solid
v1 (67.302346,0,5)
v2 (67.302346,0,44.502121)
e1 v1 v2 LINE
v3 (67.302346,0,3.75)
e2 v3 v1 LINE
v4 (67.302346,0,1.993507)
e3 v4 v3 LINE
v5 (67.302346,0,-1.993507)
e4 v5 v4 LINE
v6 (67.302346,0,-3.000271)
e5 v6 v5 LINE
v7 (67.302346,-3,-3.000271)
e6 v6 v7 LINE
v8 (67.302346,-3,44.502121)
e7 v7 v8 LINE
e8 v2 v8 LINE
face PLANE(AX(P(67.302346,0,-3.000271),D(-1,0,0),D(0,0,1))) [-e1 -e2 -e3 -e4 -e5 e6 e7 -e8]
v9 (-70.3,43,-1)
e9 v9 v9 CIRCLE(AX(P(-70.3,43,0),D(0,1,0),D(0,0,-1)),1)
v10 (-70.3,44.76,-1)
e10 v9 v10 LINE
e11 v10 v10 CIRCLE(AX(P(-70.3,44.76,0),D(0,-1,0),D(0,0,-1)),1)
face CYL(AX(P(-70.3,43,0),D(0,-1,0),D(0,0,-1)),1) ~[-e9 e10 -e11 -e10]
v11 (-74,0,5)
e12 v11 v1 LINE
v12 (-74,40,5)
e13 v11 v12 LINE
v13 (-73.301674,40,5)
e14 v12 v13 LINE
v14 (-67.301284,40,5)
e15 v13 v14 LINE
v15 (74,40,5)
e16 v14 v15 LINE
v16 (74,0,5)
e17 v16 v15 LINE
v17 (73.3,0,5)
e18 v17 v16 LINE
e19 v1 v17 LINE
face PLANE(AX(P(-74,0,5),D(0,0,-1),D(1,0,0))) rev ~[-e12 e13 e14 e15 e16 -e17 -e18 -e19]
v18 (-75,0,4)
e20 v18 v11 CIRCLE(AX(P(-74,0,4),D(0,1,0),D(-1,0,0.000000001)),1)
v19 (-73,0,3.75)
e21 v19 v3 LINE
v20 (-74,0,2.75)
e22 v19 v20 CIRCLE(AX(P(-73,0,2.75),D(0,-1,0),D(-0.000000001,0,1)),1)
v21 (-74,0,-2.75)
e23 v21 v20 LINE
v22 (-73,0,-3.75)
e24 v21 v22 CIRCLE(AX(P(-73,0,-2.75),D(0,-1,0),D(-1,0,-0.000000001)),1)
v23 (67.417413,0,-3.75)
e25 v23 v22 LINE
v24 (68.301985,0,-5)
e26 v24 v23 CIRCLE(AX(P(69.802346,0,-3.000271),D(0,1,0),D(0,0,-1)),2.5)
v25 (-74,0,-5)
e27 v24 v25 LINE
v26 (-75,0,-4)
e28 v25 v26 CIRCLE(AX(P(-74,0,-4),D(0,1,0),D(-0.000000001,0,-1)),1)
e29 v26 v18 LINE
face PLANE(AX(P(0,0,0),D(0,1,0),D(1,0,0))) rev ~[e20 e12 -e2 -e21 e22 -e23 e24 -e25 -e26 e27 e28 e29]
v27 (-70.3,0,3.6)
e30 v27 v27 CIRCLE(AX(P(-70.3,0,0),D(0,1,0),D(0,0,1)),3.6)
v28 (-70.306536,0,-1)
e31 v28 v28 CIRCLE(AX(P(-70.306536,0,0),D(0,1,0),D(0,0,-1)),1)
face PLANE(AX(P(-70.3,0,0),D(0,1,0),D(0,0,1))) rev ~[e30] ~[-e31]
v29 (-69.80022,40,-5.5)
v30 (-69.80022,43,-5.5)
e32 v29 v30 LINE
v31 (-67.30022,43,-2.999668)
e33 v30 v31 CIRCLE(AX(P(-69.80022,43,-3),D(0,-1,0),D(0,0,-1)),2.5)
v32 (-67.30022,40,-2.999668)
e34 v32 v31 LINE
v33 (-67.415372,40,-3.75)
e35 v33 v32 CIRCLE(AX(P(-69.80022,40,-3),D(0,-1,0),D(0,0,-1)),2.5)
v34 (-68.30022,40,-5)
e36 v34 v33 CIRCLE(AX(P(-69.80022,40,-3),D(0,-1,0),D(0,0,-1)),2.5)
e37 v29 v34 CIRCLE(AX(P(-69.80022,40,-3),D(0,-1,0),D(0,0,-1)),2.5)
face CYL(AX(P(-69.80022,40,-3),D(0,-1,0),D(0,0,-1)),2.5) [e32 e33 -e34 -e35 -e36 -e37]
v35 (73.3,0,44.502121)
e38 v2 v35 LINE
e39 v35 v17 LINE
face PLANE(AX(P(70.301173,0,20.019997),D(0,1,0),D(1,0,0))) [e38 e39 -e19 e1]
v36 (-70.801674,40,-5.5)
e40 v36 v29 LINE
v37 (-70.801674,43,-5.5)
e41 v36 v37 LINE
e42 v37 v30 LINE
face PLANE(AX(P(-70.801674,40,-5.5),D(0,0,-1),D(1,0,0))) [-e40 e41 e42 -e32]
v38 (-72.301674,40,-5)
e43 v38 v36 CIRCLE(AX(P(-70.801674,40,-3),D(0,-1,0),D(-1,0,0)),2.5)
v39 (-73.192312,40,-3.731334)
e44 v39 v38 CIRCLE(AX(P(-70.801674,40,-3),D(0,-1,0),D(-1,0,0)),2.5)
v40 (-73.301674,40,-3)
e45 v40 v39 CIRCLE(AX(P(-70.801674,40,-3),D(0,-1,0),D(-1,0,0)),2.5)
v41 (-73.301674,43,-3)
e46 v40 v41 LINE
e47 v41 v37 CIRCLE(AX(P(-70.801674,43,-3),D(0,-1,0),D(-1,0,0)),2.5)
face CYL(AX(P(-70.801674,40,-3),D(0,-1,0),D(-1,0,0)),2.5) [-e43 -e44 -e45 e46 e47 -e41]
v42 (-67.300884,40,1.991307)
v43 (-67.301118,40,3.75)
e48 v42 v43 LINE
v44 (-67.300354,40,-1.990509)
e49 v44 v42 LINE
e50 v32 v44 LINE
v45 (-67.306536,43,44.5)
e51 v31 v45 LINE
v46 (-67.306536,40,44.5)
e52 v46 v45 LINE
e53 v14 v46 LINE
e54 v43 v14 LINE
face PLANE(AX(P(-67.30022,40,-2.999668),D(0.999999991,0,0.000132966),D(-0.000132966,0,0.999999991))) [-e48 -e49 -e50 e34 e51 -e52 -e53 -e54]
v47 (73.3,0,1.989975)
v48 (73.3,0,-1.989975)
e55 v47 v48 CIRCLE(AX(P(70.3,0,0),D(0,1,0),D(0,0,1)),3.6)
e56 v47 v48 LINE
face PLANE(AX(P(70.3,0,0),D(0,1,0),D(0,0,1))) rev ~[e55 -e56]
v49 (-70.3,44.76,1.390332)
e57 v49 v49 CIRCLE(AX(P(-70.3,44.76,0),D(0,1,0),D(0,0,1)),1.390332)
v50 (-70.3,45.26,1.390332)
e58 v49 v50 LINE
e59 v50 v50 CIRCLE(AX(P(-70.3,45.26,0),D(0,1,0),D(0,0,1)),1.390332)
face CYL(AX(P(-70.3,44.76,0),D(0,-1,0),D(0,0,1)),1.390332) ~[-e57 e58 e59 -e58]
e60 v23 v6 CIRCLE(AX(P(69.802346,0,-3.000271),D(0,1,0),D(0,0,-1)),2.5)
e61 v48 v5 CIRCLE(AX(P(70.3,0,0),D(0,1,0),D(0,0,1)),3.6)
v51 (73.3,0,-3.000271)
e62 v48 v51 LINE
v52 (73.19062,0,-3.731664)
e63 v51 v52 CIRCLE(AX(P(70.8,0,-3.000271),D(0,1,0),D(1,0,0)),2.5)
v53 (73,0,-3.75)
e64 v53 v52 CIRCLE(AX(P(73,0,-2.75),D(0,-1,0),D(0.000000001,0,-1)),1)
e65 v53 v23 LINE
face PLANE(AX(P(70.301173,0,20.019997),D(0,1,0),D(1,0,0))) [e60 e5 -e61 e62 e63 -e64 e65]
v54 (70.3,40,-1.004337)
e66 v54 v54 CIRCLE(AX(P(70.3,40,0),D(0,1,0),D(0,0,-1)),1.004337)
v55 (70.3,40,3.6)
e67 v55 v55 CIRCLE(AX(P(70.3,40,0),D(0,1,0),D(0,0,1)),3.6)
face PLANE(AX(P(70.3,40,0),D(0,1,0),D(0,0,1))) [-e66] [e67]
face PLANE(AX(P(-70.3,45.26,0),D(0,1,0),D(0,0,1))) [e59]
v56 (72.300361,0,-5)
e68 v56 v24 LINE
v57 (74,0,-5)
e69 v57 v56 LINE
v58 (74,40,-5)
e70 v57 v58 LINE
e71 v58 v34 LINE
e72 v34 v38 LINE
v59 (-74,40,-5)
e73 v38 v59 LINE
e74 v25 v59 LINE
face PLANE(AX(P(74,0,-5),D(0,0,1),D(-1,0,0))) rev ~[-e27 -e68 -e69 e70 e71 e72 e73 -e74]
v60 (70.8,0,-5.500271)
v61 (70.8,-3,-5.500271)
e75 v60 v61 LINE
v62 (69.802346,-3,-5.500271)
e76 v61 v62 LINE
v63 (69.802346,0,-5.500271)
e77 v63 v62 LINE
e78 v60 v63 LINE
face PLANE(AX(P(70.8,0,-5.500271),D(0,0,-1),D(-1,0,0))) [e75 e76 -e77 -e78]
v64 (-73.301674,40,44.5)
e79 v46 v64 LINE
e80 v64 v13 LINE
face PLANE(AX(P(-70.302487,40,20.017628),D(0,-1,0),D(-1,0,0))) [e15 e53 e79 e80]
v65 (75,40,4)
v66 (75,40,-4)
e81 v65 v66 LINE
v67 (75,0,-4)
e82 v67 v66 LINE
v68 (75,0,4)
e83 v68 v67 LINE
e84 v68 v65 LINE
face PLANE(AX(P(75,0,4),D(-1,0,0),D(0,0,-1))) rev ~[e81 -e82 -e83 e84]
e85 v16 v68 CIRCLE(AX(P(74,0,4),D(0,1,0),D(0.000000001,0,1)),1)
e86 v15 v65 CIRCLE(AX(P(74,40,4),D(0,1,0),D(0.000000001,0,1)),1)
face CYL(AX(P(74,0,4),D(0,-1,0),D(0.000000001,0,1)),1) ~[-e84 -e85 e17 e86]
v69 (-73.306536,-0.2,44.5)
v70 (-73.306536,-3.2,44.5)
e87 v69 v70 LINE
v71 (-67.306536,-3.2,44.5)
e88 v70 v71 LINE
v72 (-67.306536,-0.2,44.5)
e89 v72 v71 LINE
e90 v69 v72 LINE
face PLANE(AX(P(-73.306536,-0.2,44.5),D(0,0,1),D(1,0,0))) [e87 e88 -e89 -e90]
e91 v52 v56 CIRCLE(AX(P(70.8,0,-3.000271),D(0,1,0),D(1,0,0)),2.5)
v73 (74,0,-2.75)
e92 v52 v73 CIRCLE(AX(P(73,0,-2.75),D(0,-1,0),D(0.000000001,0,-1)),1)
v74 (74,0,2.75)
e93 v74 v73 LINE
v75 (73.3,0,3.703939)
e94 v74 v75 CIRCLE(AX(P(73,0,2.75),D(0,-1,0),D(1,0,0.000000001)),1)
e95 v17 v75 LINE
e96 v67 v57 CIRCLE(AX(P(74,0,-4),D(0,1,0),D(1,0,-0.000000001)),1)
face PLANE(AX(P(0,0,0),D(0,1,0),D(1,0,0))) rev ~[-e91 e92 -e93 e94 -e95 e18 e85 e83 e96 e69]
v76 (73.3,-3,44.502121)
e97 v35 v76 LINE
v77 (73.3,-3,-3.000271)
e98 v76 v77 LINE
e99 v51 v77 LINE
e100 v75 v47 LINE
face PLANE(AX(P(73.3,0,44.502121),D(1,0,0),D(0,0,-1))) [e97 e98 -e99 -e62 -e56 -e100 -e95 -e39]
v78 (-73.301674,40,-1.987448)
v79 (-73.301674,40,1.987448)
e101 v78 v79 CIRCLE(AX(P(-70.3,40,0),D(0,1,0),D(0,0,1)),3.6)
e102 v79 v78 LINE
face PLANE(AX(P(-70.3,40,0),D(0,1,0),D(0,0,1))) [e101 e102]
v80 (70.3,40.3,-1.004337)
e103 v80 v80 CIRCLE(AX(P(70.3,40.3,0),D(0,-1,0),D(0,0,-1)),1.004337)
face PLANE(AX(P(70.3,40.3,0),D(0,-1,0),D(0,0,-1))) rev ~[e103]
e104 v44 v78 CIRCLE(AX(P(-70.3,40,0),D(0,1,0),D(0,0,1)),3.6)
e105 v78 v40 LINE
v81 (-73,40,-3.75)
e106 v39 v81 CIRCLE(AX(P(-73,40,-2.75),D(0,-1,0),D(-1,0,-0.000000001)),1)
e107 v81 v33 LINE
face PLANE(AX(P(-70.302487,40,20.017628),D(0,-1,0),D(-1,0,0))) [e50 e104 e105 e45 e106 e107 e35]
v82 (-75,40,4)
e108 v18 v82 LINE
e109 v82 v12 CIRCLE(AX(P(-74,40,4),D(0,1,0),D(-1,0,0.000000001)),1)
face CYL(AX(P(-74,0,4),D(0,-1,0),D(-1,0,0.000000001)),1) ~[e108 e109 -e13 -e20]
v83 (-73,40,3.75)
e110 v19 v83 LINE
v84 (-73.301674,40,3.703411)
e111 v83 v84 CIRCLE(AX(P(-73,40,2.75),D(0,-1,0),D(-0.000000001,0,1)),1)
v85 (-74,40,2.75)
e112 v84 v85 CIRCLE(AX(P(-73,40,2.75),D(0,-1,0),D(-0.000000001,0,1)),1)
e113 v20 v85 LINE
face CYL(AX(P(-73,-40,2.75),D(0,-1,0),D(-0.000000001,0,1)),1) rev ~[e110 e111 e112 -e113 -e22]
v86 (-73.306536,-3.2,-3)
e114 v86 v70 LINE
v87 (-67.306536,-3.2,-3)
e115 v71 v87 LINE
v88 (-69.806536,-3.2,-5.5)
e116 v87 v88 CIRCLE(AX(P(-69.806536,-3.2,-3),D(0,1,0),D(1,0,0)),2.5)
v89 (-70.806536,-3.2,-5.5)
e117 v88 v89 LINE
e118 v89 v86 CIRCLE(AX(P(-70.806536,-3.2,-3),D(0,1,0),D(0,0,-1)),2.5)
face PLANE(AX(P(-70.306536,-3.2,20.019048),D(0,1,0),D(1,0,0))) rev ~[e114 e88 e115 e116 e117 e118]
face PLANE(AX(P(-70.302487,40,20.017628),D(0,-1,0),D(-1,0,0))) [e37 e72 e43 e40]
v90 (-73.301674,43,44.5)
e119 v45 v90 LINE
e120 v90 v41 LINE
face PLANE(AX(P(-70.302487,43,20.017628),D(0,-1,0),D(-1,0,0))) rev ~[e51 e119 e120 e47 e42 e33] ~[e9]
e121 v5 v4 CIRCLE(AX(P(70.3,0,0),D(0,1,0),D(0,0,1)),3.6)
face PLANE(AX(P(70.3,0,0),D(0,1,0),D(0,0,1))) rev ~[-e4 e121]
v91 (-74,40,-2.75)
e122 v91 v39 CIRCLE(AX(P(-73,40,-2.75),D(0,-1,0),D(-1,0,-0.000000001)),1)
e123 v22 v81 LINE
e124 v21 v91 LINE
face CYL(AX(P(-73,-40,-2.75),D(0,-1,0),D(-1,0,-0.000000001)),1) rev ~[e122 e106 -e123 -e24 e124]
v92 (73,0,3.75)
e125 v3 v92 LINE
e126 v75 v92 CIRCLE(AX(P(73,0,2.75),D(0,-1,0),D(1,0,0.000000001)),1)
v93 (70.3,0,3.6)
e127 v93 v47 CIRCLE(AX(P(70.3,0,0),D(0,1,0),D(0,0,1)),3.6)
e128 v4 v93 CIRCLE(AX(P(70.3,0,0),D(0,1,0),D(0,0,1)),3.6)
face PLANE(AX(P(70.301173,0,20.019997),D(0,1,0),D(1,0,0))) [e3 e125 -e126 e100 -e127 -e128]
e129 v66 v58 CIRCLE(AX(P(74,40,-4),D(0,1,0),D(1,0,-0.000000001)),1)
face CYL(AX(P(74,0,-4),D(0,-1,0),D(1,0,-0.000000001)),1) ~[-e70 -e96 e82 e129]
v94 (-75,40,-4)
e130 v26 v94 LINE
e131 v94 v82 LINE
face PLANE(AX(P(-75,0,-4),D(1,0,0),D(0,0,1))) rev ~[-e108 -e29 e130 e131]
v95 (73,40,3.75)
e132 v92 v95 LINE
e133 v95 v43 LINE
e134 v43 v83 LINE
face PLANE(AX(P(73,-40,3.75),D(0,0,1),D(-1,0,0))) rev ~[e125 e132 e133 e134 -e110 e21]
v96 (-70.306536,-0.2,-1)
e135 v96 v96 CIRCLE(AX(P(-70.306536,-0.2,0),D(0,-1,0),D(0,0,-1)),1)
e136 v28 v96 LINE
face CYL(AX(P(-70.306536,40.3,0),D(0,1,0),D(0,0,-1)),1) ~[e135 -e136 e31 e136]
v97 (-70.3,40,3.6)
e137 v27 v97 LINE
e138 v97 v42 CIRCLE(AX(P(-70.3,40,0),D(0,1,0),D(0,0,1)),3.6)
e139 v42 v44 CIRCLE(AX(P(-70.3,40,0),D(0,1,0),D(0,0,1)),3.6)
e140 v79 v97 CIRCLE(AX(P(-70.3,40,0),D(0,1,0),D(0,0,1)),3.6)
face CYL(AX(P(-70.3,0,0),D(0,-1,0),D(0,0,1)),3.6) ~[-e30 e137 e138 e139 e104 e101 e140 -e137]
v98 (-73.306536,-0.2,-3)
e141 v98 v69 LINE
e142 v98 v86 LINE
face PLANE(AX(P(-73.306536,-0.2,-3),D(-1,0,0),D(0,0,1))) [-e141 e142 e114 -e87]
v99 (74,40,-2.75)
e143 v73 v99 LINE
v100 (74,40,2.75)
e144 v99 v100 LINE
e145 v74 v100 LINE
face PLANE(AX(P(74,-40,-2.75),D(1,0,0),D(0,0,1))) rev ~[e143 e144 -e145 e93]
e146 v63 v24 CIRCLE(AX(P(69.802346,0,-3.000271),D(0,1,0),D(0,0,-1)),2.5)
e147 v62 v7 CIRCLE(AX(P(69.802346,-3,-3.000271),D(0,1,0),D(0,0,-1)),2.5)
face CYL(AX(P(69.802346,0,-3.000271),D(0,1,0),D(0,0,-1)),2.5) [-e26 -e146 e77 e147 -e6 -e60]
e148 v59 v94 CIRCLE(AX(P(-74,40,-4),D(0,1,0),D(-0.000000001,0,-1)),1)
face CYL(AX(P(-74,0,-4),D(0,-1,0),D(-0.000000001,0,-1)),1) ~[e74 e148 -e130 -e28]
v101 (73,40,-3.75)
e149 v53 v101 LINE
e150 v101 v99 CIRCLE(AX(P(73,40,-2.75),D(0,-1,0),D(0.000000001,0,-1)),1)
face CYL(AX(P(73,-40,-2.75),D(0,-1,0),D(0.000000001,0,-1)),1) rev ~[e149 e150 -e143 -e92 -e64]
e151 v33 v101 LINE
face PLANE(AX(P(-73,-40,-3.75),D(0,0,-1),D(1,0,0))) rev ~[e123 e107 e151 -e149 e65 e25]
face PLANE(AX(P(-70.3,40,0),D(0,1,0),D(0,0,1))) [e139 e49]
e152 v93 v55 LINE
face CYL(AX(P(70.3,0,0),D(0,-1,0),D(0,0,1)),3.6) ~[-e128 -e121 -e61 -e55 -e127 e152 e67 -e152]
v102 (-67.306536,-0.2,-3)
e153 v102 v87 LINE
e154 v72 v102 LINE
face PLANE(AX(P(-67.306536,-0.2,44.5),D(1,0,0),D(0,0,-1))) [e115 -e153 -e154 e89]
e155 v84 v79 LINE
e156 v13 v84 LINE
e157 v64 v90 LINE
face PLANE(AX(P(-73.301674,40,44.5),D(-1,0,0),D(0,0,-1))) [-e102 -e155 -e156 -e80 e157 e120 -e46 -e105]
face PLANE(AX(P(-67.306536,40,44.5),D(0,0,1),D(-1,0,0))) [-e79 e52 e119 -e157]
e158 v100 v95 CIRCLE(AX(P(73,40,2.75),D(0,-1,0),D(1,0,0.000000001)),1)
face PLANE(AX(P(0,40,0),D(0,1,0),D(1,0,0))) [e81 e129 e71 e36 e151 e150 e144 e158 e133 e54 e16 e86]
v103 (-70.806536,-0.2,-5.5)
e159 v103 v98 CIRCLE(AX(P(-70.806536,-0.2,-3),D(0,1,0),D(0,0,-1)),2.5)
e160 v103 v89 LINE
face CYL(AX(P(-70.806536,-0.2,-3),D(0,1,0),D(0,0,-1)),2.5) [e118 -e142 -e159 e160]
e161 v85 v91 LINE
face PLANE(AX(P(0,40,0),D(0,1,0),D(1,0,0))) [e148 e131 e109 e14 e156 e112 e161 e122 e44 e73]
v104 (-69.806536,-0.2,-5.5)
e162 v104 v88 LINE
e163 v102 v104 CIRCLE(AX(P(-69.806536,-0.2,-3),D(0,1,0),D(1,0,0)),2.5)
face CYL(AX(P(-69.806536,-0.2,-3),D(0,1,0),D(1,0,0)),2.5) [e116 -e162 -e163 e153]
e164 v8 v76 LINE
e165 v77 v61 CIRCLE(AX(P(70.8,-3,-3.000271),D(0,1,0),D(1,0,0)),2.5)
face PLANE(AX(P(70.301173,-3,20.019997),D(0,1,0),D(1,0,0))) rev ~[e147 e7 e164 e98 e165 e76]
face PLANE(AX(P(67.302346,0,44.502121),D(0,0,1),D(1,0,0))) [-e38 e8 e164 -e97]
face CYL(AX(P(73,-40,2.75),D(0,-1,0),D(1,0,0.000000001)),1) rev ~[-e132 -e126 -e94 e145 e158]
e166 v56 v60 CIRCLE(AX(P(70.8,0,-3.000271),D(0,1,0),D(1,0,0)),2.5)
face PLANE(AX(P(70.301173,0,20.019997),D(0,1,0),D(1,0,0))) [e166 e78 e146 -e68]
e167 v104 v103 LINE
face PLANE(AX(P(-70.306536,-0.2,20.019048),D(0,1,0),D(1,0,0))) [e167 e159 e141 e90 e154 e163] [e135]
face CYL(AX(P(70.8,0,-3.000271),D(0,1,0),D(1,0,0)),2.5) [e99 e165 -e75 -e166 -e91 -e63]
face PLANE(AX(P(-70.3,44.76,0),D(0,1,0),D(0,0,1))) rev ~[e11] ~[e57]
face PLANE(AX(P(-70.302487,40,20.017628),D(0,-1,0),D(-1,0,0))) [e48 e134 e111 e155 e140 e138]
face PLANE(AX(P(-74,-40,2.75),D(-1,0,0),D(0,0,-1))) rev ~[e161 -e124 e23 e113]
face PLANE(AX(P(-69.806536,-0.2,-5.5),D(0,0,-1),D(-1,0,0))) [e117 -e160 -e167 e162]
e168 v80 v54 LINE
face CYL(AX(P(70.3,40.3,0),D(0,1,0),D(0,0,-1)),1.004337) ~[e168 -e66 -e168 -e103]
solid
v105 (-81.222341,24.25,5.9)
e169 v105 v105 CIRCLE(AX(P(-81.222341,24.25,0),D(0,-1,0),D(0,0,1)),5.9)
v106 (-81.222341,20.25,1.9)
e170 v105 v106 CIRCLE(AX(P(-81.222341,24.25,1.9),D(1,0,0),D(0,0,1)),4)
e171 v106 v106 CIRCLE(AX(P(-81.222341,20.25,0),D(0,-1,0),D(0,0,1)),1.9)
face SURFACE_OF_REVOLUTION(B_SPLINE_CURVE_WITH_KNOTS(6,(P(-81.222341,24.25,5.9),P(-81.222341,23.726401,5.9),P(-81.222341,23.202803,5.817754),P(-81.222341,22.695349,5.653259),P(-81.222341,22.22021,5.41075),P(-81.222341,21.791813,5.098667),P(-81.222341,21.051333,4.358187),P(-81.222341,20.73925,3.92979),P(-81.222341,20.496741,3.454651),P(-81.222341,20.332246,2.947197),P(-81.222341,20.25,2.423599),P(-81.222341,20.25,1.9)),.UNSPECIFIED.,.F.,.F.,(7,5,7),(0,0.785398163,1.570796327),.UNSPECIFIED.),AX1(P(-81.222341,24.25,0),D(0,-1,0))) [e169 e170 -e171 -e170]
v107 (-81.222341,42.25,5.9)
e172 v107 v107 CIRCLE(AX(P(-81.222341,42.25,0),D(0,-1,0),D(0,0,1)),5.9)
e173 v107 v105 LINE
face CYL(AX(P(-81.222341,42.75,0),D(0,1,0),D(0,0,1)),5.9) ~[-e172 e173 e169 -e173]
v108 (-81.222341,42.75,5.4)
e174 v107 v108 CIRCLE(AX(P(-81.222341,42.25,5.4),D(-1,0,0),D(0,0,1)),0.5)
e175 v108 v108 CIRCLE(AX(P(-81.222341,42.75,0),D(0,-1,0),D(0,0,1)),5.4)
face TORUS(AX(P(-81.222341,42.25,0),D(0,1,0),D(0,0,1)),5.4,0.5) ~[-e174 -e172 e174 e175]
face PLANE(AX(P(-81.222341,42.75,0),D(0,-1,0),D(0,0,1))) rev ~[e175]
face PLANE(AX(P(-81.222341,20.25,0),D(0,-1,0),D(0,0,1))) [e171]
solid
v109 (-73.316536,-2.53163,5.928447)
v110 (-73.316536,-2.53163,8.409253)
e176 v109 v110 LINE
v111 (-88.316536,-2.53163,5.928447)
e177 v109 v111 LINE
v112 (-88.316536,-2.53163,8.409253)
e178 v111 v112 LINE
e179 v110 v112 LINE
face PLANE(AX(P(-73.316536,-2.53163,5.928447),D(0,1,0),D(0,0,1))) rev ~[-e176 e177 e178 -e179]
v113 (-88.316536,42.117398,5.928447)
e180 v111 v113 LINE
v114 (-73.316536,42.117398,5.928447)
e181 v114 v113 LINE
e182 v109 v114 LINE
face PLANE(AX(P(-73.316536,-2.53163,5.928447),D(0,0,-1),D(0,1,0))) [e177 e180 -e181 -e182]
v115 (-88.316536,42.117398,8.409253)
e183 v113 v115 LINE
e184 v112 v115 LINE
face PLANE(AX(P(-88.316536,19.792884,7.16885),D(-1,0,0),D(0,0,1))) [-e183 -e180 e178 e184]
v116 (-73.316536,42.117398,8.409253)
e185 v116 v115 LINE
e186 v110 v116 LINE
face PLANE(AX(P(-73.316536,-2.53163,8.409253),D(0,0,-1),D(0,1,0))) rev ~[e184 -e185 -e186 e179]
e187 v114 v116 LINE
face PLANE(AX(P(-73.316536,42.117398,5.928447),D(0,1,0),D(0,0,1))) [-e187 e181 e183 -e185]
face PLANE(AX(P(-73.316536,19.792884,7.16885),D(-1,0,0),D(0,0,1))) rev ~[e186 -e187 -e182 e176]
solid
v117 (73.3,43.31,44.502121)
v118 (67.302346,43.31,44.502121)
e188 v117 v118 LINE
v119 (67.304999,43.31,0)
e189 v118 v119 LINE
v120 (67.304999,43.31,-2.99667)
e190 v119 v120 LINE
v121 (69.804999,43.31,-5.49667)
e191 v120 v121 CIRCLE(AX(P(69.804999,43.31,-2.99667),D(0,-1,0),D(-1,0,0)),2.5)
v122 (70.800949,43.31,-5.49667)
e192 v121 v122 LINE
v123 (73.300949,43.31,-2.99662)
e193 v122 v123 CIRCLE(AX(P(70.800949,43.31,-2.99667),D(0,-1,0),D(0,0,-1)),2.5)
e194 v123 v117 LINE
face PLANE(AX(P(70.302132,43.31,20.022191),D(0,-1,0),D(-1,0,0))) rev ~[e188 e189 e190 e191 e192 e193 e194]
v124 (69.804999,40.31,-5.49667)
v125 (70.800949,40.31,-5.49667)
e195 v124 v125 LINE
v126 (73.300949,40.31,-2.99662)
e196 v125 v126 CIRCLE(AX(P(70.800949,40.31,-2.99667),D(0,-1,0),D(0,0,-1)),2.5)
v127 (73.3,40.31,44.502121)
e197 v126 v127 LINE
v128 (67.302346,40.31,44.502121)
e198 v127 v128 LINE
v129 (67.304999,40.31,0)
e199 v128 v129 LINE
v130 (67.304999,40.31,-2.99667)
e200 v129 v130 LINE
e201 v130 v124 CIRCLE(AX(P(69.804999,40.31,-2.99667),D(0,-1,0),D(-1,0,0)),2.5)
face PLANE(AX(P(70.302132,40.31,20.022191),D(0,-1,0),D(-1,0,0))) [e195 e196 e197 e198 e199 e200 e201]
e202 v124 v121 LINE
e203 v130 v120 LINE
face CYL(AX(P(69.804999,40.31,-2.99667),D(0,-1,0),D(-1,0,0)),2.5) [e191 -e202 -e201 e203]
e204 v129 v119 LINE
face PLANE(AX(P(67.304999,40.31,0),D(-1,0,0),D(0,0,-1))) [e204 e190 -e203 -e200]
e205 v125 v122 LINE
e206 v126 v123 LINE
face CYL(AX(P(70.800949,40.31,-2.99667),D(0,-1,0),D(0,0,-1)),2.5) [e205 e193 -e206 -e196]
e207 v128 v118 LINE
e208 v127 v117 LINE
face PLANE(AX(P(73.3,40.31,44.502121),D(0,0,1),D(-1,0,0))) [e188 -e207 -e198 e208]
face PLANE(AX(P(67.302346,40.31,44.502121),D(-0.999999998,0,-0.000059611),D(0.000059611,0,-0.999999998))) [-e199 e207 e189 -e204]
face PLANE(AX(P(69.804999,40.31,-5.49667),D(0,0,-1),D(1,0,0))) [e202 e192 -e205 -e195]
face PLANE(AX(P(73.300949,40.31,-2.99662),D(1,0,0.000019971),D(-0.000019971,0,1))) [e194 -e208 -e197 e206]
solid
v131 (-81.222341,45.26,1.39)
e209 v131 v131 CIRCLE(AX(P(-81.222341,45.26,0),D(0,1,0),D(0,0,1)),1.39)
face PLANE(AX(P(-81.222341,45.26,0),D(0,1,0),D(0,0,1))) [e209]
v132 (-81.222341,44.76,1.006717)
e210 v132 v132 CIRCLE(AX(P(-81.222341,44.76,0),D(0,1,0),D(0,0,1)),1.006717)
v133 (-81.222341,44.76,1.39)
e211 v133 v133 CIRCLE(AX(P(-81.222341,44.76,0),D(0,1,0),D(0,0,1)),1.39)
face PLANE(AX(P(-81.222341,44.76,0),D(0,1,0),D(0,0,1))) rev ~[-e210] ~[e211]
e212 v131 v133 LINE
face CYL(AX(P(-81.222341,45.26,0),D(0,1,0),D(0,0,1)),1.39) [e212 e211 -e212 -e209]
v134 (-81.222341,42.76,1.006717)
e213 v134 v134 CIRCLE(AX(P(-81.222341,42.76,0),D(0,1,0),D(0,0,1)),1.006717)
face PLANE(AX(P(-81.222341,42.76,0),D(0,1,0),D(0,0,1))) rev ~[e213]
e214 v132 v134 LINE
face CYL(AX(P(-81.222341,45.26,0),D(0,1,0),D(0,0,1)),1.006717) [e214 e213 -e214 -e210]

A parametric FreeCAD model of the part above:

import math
import FreeCAD as App
import Part
import Sketcher
from FreeCAD import Vector


def edges_at(feature, points):
    """Names of the edges that pass closest to the given points."""
    edges = feature.Shape.Edges
    near = lambda p: min(range(len(edges)), key=lambda i: edges[i].distToShape(Part.Vertex(*p))[0])
    return sorted({f"Edge{near(p) + 1}" for p in points})


def add_polygon(sketch, points):
    """Adds a closed chain of lines whose ends are joined by coincident constraints."""
    first, n = sketch.GeometryCount, len(points)
    for a, b in zip(points, points[1:] + points[:1]):
        sketch.addGeometry(Part.LineSegment(App.Vector(*a, 0), App.Vector(*b, 0)), False)
    for i in range(n):
        sketch.addConstraint(Sketcher.Constraint("Coincident", first + i, 2, first + (i + 1) % n, 1))

doc = App.newDocument("Part")
body = doc.addObject("PartDesign::Body", "Body")

sketch1 = body.newObject("Sketcher::SketchObject", "Sketch")
sketch1.AttachmentSupport = (doc.getObject("XZ_Plane"), [""])
sketch1.MapMode = "FlatFace"
sketch1.addGeometry([
    Part.LineSegment(Vector(-74, 5, 0), Vector(74, 5, 0)),
    Part.ArcOfCircle(Part.Circle(Vector(74, 4, 0), Vector(0, 0, 1), 1), math.radians(0), math.radians(90)),
    Part.LineSegment(Vector(75, 4, 0), Vector(75, -4, 0)),
    Part.ArcOfCircle(Part.Circle(Vector(74, -4, 0), Vector(0, 0, 1), 1), math.radians(-90), math.radians(0)),
    Part.LineSegment(Vector(74, -5, 0), Vector(-74, -5, 0)),
    Part.ArcOfCircle(Part.Circle(Vector(-74, -4, 0), Vector(0, 0, 1), 1), math.radians(-180), math.radians(-90)),
    Part.LineSegment(Vector(-75, -4, 0), Vector(-75, 4, 0)),
    Part.ArcOfCircle(Part.Circle(Vector(-74, 4, 0), Vector(0, 0, 1), 1), math.radians(90), math.radians(180)),
], False)
sketch1.addConstraint([
    Sketcher.Constraint("Tangent", 0, 2, 1, 2),
    Sketcher.Constraint("Tangent", 1, 1, 2, 1),
    Sketcher.Constraint("Tangent", 2, 2, 3, 2),
    Sketcher.Constraint("Tangent", 3, 1, 4, 1),
    Sketcher.Constraint("Tangent", 4, 2, 5, 2),
    Sketcher.Constraint("Tangent", 5, 1, 6, 1),
    Sketcher.Constraint("Tangent", 6, 2, 7, 2),
    Sketcher.Constraint("Tangent", 7, 1, 0, 1),
    Sketcher.Constraint("Horizontal", 0),
    Sketcher.Constraint("Vertical", 2),
    Sketcher.Constraint("Horizontal", 4),
    Sketcher.Constraint("Vertical", 6),
    Sketcher.Constraint("Equal", 1, 3),
    Sketcher.Constraint("Equal", 3, 5),
    Sketcher.Constraint("Equal", 5, 7),
    Sketcher.Constraint("Symmetric", 1, 3, 5, 3, -1, 1),
    Sketcher.Constraint("Radius", 1, 1.0),
    Sketcher.Constraint("DistanceX", 0, 1, 0, 2, 148.0),
    Sketcher.Constraint("DistanceY", 2, 2, 2, 1, 8.0),
])
pad1 = body.newObject("PartDesign::Pad", "Pad")
pad1.Profile = sketch1
pad1.Length = 40
pad1.Reversed = True

sketch2 = body.newObject("Sketcher::SketchObject", "Sketch001")
sketch2.AttachmentSupport = (doc.getObject("XZ_Plane"), [""])
sketch2.MapMode = "FlatFace"
sketch2.addGeometry([
    Part.LineSegment(Vector(-73, 3.8, 0), Vector(73, 3.8, 0)),
    Part.ArcOfCircle(Part.Circle(Vector(73, 2.7, 0), Vector(0, 0, 1), 1), math.radians(0), math.radians(90)),
    Part.LineSegment(Vector(74, 2.8, 0), Vector(74, -2.8, 0)),
    Part.ArcOfCircle(Part.Circle(Vector(73, -2.7, 0), Vector(0, 0, 1), 1), math.radians(-90), math.radians(0)),
    Part.LineSegment(Vector(73, -3.8, 0), Vector(-73, -3.8, 0)),
    Part.ArcOfCircle(Part.Circle(Vector(-73, -2.7, 0), Vector(0, 0, 1), 1), math.radians(-180), math.radians(-90)),
    Part.LineSegment(Vector(-74, -2.8, 0), Vector(-74, 2.8, 0)),
    Part.ArcOfCircle(Part.Circle(Vector(-73, 2.7, 0), Vector(0, 0, 1), 1), math.radians(90), math.radians(180)),
], False)
sketch2.addConstraint([
    Sketcher.Constraint("Tangent", 0, 2, 1, 2),
    Sketcher.Constraint("Tangent", 1, 1, 2, 1),
    Sketcher.Constraint("Tangent", 2, 2, 3, 2),
    Sketcher.Constraint("Tangent", 3, 1, 4, 1),
    Sketcher.Constraint("Tangent", 4, 2, 5, 2),
    Sketcher.Constraint("Tangent", 5, 1, 6, 1),
    Sketcher.Constraint("Tangent", 6, 2, 7, 2),
    Sketcher.Constraint("Tangent", 7, 1, 0, 1),
    Sketcher.Constraint("Horizontal", 0),
    Sketcher.Constraint("Vertical", 2),
    Sketcher.Constraint("Horizontal", 4),
    Sketcher.Constraint("Vertical", 6),
    Sketcher.Constraint("Equal", 1, 3),
    Sketcher.Constraint("Equal", 3, 5),
    Sketcher.Constraint("Equal", 5, 7),
    Sketcher.Constraint("Symmetric", 1, 3, 5, 3, -1, 1),
    Sketcher.Constraint("Radius", 1, 1.0),
    Sketcher.Constraint("DistanceX", 0, 1, 0, 2, 146.0),
    Sketcher.Constraint("DistanceY", 2, 2, 2, 1, 5.5),
])
pocket1 = body.newObject("PartDesign::Pocket", "Pocket")
pocket1.Profile = sketch2
pocket1.Type = "ThroughAll"
pocket1.Midplane = True
body2 = doc.addObject("PartDesign::Body", "Body001")

sketch3 = body2.newObject("Sketcher::SketchObject", "Sketch002")
sketch3.AttachmentSupport = (doc.getObject("XZ_Plane001"), [""])
sketch3.MapMode = "FlatFace"
sketch3.addGeometry(Part.Circle(Vector(70.3, 0, 0), Vector(0, 0, 1), 3.6), False)
sketch3.addConstraint([
    Sketcher.Constraint("PointOnObject", 0, 3, -1),
    Sketcher.Constraint("Diameter", 0, 7.2),
    Sketcher.Constraint("DistanceX", -1, 1, 0, 3, 70.3),
])
pad2 = body2.newObject("PartDesign::Pad", "Pad001")
pad2.Profile = sketch3
pad2.Length = 40
pad2.Reversed = True

sketch4 = body2.newObject("Sketcher::SketchObject", "Sketch003")
sketch4.AttachmentSupport = (doc.getObject("XZ_Plane001"), [""])
sketch4.MapMode = "FlatFace"
sketch4.addGeometry(Part.Circle(Vector(70.3, 0, 0), Vector(0, 0, 1), 1), False)
sketch4.addConstraint([
    Sketcher.Constraint("PointOnObject", 0, 3, -1),
    Sketcher.Constraint("DistanceX", -1, 1, 0, 3, 70.3),
    Sketcher.Constraint("Diameter", 0, 2.008674),
])
pad3 = body2.newObject("PartDesign::Pad", "Pad002")
pad3.Profile = sketch4
pad3.Type = "TwoLengths"
pad3.Length = 0.2
pad3.Length2 = 40.3
body3 = doc.addObject("PartDesign::Body", "Body002")

sketch5 = body3.newObject("Sketcher::SketchObject", "Sketch004")
sketch5.AttachmentSupport = (doc.getObject("XZ_Plane002"), [""])
sketch5.MapMode = "FlatFace"
sketch5.addGeometry(Part.Circle(Vector(-70.3, 0, 0), Vector(0, 0, 1), 3.6), False)
sketch5.addConstraint([
    Sketcher.Constraint("PointOnObject", 0, 3, -1),
    Sketcher.Constraint("Diameter", 0, 7.2),
    Sketcher.Constraint("DistanceX", 0, 3, -1, 1, 70.3),
])
pad4 = body3.newObject("PartDesign::Pad", "Pad003")
pad4.Profile = sketch5
pad4.Length = 40
pad4.Reversed = True

sketch6 = body3.newObject("Sketcher::SketchObject", "Sketch005")
sketch6.AttachmentSupport = (doc.getObject("XZ_Plane002"), [""])
sketch6.MapMode = "FlatFace"
sketch6.addGeometry(Part.Circle(Vector(-70.3, 0, 0), Vector(0, 0, 1), 1), False)
sketch6.addConstraint([
    Sketcher.Constraint("PointOnObject", 0, 3, -1),
    Sketcher.Constraint("Diameter", 0, 2.0),
    Sketcher.Constraint("DistanceX", 0, 3, -1, 1, 70.306536),
])
pad5 = body3.newObject("PartDesign::Pad", "Pad004")
pad5.Profile = sketch6
pad5.Type = "TwoLengths"
pad5.Length = 0.2
pad5.Length2 = 40.3

sketch7 = body3.newObject("Sketcher::SketchObject", "Sketch006")
sketch7.AttachmentSupport = (doc.getObject("XZ_Plane002"), [""])
sketch7.MapMode = "FlatFace"
sketch7.AttachmentOffset = App.Placement(Vector(0, 0, 0.2), App.Rotation())
sketch7.addGeometry([
    Part.ArcOfCircle(Part.Circle(Vector(-69.8, -3, 0), Vector(0, 0, 1), 2.5), math.radians(-90), math.radians(0)),
    Part.LineSegment(Vector(-67.3, -3, 0), Vector(-67.3, 44.5, 0)),
    Part.LineSegment(Vector(-67.3, 44.5, 0), Vector(-73.3, 44.5, 0)),
    Part.LineSegment(Vector(-73.3, 44.5, 0), Vector(-73.3, -3, 0)),
    Part.ArcOfCircle(Part.Circle(Vector(-70.8, -3, 0), Vector(0, 0, 1), 2.5), math.radians(180), math.radians(270)),
    Part.LineSegment(Vector(-70.8, -5.5, 0), Vector(-69.8, -5.5, 0)),
], False)
sketch7.addConstraint([
    Sketcher.Constraint("Tangent", 0, 2, 1, 1),
    Sketcher.Constraint("Coincident", 1, 2, 2, 1),
    Sketcher.Constraint("Coincident", 2, 2, 3, 1),
    Sketcher.Constraint("Tangent", 3, 2, 4, 1),
    Sketcher.Constraint("Tangent", 4, 2, 5, 1),
    Sketcher.Constraint("Tangent", 5, 2, 0, 1),
    Sketcher.Constraint("Vertical", 1),
    Sketcher.Constraint("Horizontal", 2),
    Sketcher.Constraint("Vertical", 3),
    Sketcher.Constraint("Horizontal", 5),
    Sketcher.Constraint("Equal", 0, 4),
    Sketcher.Constraint("Radius", 0, 2.5),
    Sketcher.Constraint("DistanceX", 2, 2, 2, 1, 6.0),
    Sketcher.Constraint("DistanceY", 1, 1, 1, 2, 47.5),
    Sketcher.Constraint("DistanceY", 0, 3, -1, 1, 3.0),
    Sketcher.Constraint("DistanceX", 0, 3, -1, 1, 69.806536),
])
pad6 = body3.newObject("PartDesign::Pad", "Pad005")
pad6.Profile = sketch7
pad6.Length = 3
body.AllowCompound = True
doc.recompute()

boolean = body.newObject("PartDesign::Boolean", "Boolean")
boolean.Type = "Fuse"
boolean.addObjects([body2])

sketch8 = body.newObject("Sketcher::SketchObject", "Sketch007")
sketch8.AttachmentSupport = (doc.getObject("XZ_Plane"), [""])
sketch8.MapMode = "FlatFace"
sketch8.addGeometry([
    Part.ArcOfCircle(Part.Circle(Vector(70.8, -3, 0), Vector(0, 0, 1), 2.5), math.radians(-90), math.radians(0)),
    Part.LineSegment(Vector(73.3, -3, 0), Vector(73.3, 44.5, 0)),
    Part.LineSegment(Vector(73.3, 44.5, 0), Vector(67.3, 44.5, 0)),
    Part.LineSegment(Vector(67.3, 44.5, 0), Vector(67.3, -3, 0)),
    Part.ArcOfCircle(Part.Circle(Vector(69.8, -3, 0), Vector(0, 0, 1), 2.5), math.radians(180), math.radians(270)),
    Part.LineSegment(Vector(69.8, -5.5, 0), Vector(70.8, -5.5, 0)),
], False)
sketch8.addConstraint([
    Sketcher.Constraint("Tangent", 0, 2, 1, 1),
    Sketcher.Constraint("Coincident", 1, 2, 2, 1),
    Sketcher.Constraint("Coincident", 2, 2, 3, 1),
    Sketcher.Constraint("Tangent", 3, 2, 4, 1),
    Sketcher.Constraint("Tangent", 4, 2, 5, 1),
    Sketcher.Constraint("Tangent", 5, 2, 0, 1),
    Sketcher.Constraint("Vertical", 1),
    Sketcher.Constraint("Horizontal", 2),
    Sketcher.Constraint("Vertical", 3),
    Sketcher.Constraint("Horizontal", 5),
    Sketcher.Constraint("Equal", 0, 4),
    Sketcher.Constraint("Radius", 0, 2.5),
    Sketcher.Constraint("DistanceX", -1, 1, 0, 3, 70.8),
    Sketcher.Constraint("DistanceX", 2, 2, 2, 1, 5.997654),
    Sketcher.Constraint("DistanceY", 1, 1, 1, 2, 47.502392),
    Sketcher.Constraint("DistanceY", 0, 3, -1, 1, 3.000271),
])
pad7 = body.newObject("PartDesign::Pad", "Pad006")
pad7.Profile = sketch8
pad7.Length = 3
doc.recompute()

boolean2 = body.newObject("PartDesign::Boolean", "Boolean001")
boolean2.Type = "Fuse"
boolean2.addObjects([body3])

sketch9 = body.newObject("Sketcher::SketchObject", "Sketch008")
sketch9.AttachmentSupport = (doc.getObject("XZ_Plane"), [""])
sketch9.MapMode = "FlatFace"
sketch9.AttachmentOffset = App.Placement(Vector(0, 0, -40), App.Rotation())
sketch9.addGeometry([
    Part.ArcOfCircle(Part.Circle(Vector(-70.8, -3, 0), Vector(0, 0, 1), 2.5), math.radians(180), math.radians(270)),
    Part.LineSegment(Vector(-73.3, -3, 0), Vector(-73.3, 44.5, 0)),
    Part.LineSegment(Vector(-73.3, 44.5, 0), Vector(-67.3, 44.5, 0)),
    Part.LineSegment(Vector(-67.3, 44.5, 0), Vector(-67.3, -3, 0)),
    Part.ArcOfCircle(Part.Circle(Vector(-69.8, -3, 0), Vector(0, 0, 1), 2.5), math.radians(-90), math.radians(0)),
    Part.LineSegment(Vector(-69.8, -5.5, 0), Vector(-70.8, -5.5, 0)),
], False)
sketch9.addConstraint([
    Sketcher.Constraint("Tangent", 0, 1, 1, 1),
    Sketcher.Constraint("Coincident", 1, 2, 2, 1),
    Sketcher.Constraint("Coincident", 2, 2, 3, 1),
    Sketcher.Constraint("Tangent", 3, 2, 4, 2),
    Sketcher.Constraint("Tangent", 4, 1, 5, 1),
    Sketcher.Constraint("Tangent", 5, 2, 0, 2),
    Sketcher.Constraint("Vertical", 1),
    Sketcher.Constraint("Horizontal", 2),
    Sketcher.Constraint("Horizontal", 5),
    Sketcher.Constraint("Equal", 0, 4),
    Sketcher.Constraint("Radius", 0, 2.5),
    Sketcher.Constraint("DistanceY", 1, 1, 1, 2, 47.5),
    Sketcher.Constraint("DistanceY", 0, 3, -1, 1, 3.0),
    Sketcher.Constraint("DistanceX", 2, 1, 2, 2, 5.995138),
    Sketcher.Constraint("Distance", 3, 47.499668),
    Sketcher.Constraint("DistanceX", 4, 3, -1, 1, 69.80022),
])
pad8 = body.newObject("PartDesign::Pad", "Pad007")
pad8.Profile = sketch9
pad8.Length = 3
pad8.Reversed = True

sketch10 = body.newObject("Sketcher::SketchObject", "Sketch009")
sketch10.AttachmentSupport = (doc.getObject("XZ_Plane"), [""])
sketch10.MapMode = "FlatFace"
sketch10.AttachmentOffset = App.Placement(Vector(0, 0, -43), App.Rotation())
sketch10.addGeometry(Part.Circle(Vector(-70.3, 0, 0), Vector(0, 0, 1), 1), False)
sketch10.addConstraint([
    Sketcher.Constraint("PointOnObject", 0, 3, -1),
    Sketcher.Constraint("Diameter", 0, 2.0),
    Sketcher.Constraint("DistanceX", 0, 3, -1, 1, 70.3),
])
pad9 = body.newObject("PartDesign::Pad", "Pad008")
pad9.Profile = sketch10
pad9.Length = 2
pad9.Reversed = True

sketch11 = body.newObject("Sketcher::SketchObject", "Sketch010")
sketch11.AttachmentSupport = (doc.getObject("XZ_Plane"), [""])
sketch11.MapMode = "FlatFace"
sketch11.AttachmentOffset = App.Placement(Vector(0, 0, -45.01), App.Rotation())
sketch11.addGeometry(Part.Circle(Vector(-70.3, 0, 0), Vector(0, 0, 1), 1.4), False)
sketch11.addConstraint([
    Sketcher.Constraint("PointOnObject", 0, 3, -1),
    Sketcher.Constraint("DistanceX", 0, 3, -1, 1, 70.3),
    Sketcher.Constraint("Diameter", 0, 2.780664),
])
pad10 = body.newObject("PartDesign::Pad", "Pad009")
pad10.Profile = sketch11
pad10.Type = "TwoLengths"
pad10.Length = 0.25
pad10.Length2 = 0.25
pad10.Reversed = True
body4 = doc.addObject("PartDesign::Body", "Body003")

sketch12 = body4.newObject("Sketcher::SketchObject", "Sketch011")
sketch12.AttachmentSupport = (doc.getObject("XZ_Plane003"), [""])
sketch12.MapMode = "FlatFace"
sketch12.AttachmentOffset = App.Placement(Vector(0, 0, -40.31), App.Rotation())
sketch12.addGeometry([
    Part.LineSegment(Vector(67.3, -3, 0), Vector(67.3, 0, 0)),
    Part.LineSegment(Vector(67.3, 0, 0), Vector(67.3, 44.5, 0)),
    Part.LineSegment(Vector(67.3, 44.5, 0), Vector(73.3, 44.5, 0)),
    Part.LineSegment(Vector(73.3, 44.5, 0), Vector(73.3, -3, 0)),
    Part.ArcOfCircle(Part.Circle(Vector(70.8, -3, 0), Vector(0, 0, 1), 2.5), math.radians(-90), math.radians(0)),
    Part.LineSegment(Vector(70.8, -5.5, 0), Vector(69.8, -5.5, 0)),
    Part.ArcOfCircle(Part.Circle(Vector(69.8, -3, 0), Vector(0, 0, 1), 2.5), math.radians(180), math.radians(270)),
], False)
sketch12.addConstraint([
    Sketcher.Constraint("Coincident", 0, 2, 1, 1),
    Sketcher.Constraint("Coincident", 1, 2, 2, 1),
    Sketcher.Constraint("Coincident", 2, 2, 3, 1),
    Sketcher.Constraint("Tangent", 3, 2, 4, 2),
    Sketcher.Constraint("Tangent", 4, 1, 5, 1),
    Sketcher.Constraint("Tangent", 5, 2, 6, 2),
    Sketcher.Constraint("Tangent", 6, 1, 0, 1),
    Sketcher.Constraint("Vertical", 0),
    Sketcher.Constraint("Horizontal", 2),
    Sketcher.Constraint("Horizontal", 5),
    Sketcher.Constraint("Equal", 4, 6),
    Sketcher.Constraint("PointOnObject", 0, 2, -1),
    Sketcher.Constraint("Radius", 4, 2.5),
    Sketcher.Constraint("DistanceX", -1, 1, 2, 2, 73.3),
    Sketcher.Constraint("DistanceX", -1, 1, 6, 3, 69.804999),
    Sketcher.Constraint("DistanceX", 5, 2, 5, 1, 0.99595),
    Sketcher.Constraint("DistanceY", 0, 1, 0, 2, 2.99667),
    Sketcher.Constraint("Distance", 1, 44.502121),
    Sketcher.Constraint("DistanceX", 2, 1, 2, 2, 5.997654),
])
pad11 = body4.newObject("PartDesign::Pad", "Pad010")
pad11.Profile = sketch12
pad11.Length = 3
pad11.Reversed = True
body5 = doc.addObject("PartDesign::Body", "Body004")

sketch13 = body5.newObject("Sketcher::SketchObject", "Sketch012")
sketch13.AttachmentSupport = (doc.getObject("YZ_Plane004"), [""])
sketch13.MapMode = "FlatFace"
sketch13.AttachmentOffset = App.Placement(Vector(0, 0, -73.316536), App.Rotation())
add_polygon(sketch13, [(42.1, 5.9), (-2.5, 5.9), (-2.5, 8.4), (42.1, 8.4)])
sketch13.addConstraint([
    Sketcher.Constraint("Horizontal", 0),
    Sketcher.Constraint("Vertical", 1),
    Sketcher.Constraint("Horizontal", 2),
    Sketcher.Constraint("Vertical", 3),
    Sketcher.Constraint("DistanceX", 0, 2, 0, 1, 44.649028),
    Sketcher.Constraint("DistanceX", -1, 1, 2, 2, 42.117398),
    Sketcher.Constraint("DistanceY", 1, 1, 1, 2, 2.480806),
    Sketcher.Constraint("DistanceY", -1, 1, 0, 2, 5.928447),
])
pad12 = body5.newObject("PartDesign::Pad", "Pad011")
pad12.Profile = sketch13
pad12.Length = 15
pad12.Reversed = True
body6 = doc.addObject("PartDesign::Body", "Body005")

sketch14 = body6.newObject("Sketcher::SketchObject", "Sketch013")
sketch14.AttachmentSupport = (doc.getObject("XZ_Plane005"), [""])
sketch14.MapMode = "FlatFace"
sketch14.AttachmentOffset = App.Placement(Vector(0, 0, -45.26), App.Rotation())
sketch14.addGeometry(Part.Circle(Vector(-81.2, 0, 0), Vector(0, 0, 1), 1.4), False)
sketch14.addConstraint([
    Sketcher.Constraint("PointOnObject", 0, 3, -1),
    Sketcher.Constraint("Diameter", 0, 2.78),
    Sketcher.Constraint("DistanceX", 0, 3, -1, 1, 81.222341),
])
pad13 = body6.newObject("PartDesign::Pad", "Pad012")
pad13.Profile = sketch14
pad13.Length = 0.5

sketch15 = body6.newObject("Sketcher::SketchObject", "Sketch014")
sketch15.AttachmentSupport = (doc.getObject("XZ_Plane005"), [""])
sketch15.MapMode = "FlatFace"
sketch15.AttachmentOffset = App.Placement(Vector(0, 0, -45.26), App.Rotation())
sketch15.addGeometry(Part.Circle(Vector(-81.2, 0, 0), Vector(0, 0, 1), 1), False)
sketch15.addConstraint([
    Sketcher.Constraint("PointOnObject", 0, 3, -1),
    Sketcher.Constraint("Diameter", 0, 2.013434),
    Sketcher.Constraint("DistanceX", 0, 3, -1, 1, 81.222341),
])
pad14 = body6.newObject("PartDesign::Pad", "Pad013")
pad14.Profile = sketch15
pad14.Length = 2.5
body7 = doc.addObject("PartDesign::Body", "Body006")

sketch16 = body7.newObject("Sketcher::SketchObject", "Sketch015")
sketch16.AttachmentSupport = (doc.getObject("XZ_Plane006"), [""])
sketch16.MapMode = "FlatFace"
sketch16.AttachmentOffset = App.Placement(Vector(0, 0, -42.75), App.Rotation())
sketch16.addGeometry(Part.Circle(Vector(-81, 0, 0), Vector(0, 0, 1), 6), False)
sketch16.addConstraint([
    Sketcher.Constraint("PointOnObject", 0, 3, -1),
    Sketcher.Constraint("Diameter", 0, 11.8),
    Sketcher.Constraint("DistanceX", 0, 3, -1, 1, 81.222341),
])
pad15 = body7.newObject("PartDesign::Pad", "Pad014")
pad15.Profile = sketch16
pad15.Length = 22.5
doc.recompute()

fillet = body7.newObject("PartDesign::Fillet", "Fillet")
fillet.Base = (pad15, edges_at(pad15, [(-81.222, 20.25, -5.9)]))
fillet.Radius = 4
doc.recompute()

fillet2 = body7.newObject("PartDesign::Fillet", "Fillet001")
fillet2.Base = (fillet, edges_at(fillet, [(-81.222, 42.75, -5.9)]))
fillet2.Radius = 0.5

doc.recompute()
